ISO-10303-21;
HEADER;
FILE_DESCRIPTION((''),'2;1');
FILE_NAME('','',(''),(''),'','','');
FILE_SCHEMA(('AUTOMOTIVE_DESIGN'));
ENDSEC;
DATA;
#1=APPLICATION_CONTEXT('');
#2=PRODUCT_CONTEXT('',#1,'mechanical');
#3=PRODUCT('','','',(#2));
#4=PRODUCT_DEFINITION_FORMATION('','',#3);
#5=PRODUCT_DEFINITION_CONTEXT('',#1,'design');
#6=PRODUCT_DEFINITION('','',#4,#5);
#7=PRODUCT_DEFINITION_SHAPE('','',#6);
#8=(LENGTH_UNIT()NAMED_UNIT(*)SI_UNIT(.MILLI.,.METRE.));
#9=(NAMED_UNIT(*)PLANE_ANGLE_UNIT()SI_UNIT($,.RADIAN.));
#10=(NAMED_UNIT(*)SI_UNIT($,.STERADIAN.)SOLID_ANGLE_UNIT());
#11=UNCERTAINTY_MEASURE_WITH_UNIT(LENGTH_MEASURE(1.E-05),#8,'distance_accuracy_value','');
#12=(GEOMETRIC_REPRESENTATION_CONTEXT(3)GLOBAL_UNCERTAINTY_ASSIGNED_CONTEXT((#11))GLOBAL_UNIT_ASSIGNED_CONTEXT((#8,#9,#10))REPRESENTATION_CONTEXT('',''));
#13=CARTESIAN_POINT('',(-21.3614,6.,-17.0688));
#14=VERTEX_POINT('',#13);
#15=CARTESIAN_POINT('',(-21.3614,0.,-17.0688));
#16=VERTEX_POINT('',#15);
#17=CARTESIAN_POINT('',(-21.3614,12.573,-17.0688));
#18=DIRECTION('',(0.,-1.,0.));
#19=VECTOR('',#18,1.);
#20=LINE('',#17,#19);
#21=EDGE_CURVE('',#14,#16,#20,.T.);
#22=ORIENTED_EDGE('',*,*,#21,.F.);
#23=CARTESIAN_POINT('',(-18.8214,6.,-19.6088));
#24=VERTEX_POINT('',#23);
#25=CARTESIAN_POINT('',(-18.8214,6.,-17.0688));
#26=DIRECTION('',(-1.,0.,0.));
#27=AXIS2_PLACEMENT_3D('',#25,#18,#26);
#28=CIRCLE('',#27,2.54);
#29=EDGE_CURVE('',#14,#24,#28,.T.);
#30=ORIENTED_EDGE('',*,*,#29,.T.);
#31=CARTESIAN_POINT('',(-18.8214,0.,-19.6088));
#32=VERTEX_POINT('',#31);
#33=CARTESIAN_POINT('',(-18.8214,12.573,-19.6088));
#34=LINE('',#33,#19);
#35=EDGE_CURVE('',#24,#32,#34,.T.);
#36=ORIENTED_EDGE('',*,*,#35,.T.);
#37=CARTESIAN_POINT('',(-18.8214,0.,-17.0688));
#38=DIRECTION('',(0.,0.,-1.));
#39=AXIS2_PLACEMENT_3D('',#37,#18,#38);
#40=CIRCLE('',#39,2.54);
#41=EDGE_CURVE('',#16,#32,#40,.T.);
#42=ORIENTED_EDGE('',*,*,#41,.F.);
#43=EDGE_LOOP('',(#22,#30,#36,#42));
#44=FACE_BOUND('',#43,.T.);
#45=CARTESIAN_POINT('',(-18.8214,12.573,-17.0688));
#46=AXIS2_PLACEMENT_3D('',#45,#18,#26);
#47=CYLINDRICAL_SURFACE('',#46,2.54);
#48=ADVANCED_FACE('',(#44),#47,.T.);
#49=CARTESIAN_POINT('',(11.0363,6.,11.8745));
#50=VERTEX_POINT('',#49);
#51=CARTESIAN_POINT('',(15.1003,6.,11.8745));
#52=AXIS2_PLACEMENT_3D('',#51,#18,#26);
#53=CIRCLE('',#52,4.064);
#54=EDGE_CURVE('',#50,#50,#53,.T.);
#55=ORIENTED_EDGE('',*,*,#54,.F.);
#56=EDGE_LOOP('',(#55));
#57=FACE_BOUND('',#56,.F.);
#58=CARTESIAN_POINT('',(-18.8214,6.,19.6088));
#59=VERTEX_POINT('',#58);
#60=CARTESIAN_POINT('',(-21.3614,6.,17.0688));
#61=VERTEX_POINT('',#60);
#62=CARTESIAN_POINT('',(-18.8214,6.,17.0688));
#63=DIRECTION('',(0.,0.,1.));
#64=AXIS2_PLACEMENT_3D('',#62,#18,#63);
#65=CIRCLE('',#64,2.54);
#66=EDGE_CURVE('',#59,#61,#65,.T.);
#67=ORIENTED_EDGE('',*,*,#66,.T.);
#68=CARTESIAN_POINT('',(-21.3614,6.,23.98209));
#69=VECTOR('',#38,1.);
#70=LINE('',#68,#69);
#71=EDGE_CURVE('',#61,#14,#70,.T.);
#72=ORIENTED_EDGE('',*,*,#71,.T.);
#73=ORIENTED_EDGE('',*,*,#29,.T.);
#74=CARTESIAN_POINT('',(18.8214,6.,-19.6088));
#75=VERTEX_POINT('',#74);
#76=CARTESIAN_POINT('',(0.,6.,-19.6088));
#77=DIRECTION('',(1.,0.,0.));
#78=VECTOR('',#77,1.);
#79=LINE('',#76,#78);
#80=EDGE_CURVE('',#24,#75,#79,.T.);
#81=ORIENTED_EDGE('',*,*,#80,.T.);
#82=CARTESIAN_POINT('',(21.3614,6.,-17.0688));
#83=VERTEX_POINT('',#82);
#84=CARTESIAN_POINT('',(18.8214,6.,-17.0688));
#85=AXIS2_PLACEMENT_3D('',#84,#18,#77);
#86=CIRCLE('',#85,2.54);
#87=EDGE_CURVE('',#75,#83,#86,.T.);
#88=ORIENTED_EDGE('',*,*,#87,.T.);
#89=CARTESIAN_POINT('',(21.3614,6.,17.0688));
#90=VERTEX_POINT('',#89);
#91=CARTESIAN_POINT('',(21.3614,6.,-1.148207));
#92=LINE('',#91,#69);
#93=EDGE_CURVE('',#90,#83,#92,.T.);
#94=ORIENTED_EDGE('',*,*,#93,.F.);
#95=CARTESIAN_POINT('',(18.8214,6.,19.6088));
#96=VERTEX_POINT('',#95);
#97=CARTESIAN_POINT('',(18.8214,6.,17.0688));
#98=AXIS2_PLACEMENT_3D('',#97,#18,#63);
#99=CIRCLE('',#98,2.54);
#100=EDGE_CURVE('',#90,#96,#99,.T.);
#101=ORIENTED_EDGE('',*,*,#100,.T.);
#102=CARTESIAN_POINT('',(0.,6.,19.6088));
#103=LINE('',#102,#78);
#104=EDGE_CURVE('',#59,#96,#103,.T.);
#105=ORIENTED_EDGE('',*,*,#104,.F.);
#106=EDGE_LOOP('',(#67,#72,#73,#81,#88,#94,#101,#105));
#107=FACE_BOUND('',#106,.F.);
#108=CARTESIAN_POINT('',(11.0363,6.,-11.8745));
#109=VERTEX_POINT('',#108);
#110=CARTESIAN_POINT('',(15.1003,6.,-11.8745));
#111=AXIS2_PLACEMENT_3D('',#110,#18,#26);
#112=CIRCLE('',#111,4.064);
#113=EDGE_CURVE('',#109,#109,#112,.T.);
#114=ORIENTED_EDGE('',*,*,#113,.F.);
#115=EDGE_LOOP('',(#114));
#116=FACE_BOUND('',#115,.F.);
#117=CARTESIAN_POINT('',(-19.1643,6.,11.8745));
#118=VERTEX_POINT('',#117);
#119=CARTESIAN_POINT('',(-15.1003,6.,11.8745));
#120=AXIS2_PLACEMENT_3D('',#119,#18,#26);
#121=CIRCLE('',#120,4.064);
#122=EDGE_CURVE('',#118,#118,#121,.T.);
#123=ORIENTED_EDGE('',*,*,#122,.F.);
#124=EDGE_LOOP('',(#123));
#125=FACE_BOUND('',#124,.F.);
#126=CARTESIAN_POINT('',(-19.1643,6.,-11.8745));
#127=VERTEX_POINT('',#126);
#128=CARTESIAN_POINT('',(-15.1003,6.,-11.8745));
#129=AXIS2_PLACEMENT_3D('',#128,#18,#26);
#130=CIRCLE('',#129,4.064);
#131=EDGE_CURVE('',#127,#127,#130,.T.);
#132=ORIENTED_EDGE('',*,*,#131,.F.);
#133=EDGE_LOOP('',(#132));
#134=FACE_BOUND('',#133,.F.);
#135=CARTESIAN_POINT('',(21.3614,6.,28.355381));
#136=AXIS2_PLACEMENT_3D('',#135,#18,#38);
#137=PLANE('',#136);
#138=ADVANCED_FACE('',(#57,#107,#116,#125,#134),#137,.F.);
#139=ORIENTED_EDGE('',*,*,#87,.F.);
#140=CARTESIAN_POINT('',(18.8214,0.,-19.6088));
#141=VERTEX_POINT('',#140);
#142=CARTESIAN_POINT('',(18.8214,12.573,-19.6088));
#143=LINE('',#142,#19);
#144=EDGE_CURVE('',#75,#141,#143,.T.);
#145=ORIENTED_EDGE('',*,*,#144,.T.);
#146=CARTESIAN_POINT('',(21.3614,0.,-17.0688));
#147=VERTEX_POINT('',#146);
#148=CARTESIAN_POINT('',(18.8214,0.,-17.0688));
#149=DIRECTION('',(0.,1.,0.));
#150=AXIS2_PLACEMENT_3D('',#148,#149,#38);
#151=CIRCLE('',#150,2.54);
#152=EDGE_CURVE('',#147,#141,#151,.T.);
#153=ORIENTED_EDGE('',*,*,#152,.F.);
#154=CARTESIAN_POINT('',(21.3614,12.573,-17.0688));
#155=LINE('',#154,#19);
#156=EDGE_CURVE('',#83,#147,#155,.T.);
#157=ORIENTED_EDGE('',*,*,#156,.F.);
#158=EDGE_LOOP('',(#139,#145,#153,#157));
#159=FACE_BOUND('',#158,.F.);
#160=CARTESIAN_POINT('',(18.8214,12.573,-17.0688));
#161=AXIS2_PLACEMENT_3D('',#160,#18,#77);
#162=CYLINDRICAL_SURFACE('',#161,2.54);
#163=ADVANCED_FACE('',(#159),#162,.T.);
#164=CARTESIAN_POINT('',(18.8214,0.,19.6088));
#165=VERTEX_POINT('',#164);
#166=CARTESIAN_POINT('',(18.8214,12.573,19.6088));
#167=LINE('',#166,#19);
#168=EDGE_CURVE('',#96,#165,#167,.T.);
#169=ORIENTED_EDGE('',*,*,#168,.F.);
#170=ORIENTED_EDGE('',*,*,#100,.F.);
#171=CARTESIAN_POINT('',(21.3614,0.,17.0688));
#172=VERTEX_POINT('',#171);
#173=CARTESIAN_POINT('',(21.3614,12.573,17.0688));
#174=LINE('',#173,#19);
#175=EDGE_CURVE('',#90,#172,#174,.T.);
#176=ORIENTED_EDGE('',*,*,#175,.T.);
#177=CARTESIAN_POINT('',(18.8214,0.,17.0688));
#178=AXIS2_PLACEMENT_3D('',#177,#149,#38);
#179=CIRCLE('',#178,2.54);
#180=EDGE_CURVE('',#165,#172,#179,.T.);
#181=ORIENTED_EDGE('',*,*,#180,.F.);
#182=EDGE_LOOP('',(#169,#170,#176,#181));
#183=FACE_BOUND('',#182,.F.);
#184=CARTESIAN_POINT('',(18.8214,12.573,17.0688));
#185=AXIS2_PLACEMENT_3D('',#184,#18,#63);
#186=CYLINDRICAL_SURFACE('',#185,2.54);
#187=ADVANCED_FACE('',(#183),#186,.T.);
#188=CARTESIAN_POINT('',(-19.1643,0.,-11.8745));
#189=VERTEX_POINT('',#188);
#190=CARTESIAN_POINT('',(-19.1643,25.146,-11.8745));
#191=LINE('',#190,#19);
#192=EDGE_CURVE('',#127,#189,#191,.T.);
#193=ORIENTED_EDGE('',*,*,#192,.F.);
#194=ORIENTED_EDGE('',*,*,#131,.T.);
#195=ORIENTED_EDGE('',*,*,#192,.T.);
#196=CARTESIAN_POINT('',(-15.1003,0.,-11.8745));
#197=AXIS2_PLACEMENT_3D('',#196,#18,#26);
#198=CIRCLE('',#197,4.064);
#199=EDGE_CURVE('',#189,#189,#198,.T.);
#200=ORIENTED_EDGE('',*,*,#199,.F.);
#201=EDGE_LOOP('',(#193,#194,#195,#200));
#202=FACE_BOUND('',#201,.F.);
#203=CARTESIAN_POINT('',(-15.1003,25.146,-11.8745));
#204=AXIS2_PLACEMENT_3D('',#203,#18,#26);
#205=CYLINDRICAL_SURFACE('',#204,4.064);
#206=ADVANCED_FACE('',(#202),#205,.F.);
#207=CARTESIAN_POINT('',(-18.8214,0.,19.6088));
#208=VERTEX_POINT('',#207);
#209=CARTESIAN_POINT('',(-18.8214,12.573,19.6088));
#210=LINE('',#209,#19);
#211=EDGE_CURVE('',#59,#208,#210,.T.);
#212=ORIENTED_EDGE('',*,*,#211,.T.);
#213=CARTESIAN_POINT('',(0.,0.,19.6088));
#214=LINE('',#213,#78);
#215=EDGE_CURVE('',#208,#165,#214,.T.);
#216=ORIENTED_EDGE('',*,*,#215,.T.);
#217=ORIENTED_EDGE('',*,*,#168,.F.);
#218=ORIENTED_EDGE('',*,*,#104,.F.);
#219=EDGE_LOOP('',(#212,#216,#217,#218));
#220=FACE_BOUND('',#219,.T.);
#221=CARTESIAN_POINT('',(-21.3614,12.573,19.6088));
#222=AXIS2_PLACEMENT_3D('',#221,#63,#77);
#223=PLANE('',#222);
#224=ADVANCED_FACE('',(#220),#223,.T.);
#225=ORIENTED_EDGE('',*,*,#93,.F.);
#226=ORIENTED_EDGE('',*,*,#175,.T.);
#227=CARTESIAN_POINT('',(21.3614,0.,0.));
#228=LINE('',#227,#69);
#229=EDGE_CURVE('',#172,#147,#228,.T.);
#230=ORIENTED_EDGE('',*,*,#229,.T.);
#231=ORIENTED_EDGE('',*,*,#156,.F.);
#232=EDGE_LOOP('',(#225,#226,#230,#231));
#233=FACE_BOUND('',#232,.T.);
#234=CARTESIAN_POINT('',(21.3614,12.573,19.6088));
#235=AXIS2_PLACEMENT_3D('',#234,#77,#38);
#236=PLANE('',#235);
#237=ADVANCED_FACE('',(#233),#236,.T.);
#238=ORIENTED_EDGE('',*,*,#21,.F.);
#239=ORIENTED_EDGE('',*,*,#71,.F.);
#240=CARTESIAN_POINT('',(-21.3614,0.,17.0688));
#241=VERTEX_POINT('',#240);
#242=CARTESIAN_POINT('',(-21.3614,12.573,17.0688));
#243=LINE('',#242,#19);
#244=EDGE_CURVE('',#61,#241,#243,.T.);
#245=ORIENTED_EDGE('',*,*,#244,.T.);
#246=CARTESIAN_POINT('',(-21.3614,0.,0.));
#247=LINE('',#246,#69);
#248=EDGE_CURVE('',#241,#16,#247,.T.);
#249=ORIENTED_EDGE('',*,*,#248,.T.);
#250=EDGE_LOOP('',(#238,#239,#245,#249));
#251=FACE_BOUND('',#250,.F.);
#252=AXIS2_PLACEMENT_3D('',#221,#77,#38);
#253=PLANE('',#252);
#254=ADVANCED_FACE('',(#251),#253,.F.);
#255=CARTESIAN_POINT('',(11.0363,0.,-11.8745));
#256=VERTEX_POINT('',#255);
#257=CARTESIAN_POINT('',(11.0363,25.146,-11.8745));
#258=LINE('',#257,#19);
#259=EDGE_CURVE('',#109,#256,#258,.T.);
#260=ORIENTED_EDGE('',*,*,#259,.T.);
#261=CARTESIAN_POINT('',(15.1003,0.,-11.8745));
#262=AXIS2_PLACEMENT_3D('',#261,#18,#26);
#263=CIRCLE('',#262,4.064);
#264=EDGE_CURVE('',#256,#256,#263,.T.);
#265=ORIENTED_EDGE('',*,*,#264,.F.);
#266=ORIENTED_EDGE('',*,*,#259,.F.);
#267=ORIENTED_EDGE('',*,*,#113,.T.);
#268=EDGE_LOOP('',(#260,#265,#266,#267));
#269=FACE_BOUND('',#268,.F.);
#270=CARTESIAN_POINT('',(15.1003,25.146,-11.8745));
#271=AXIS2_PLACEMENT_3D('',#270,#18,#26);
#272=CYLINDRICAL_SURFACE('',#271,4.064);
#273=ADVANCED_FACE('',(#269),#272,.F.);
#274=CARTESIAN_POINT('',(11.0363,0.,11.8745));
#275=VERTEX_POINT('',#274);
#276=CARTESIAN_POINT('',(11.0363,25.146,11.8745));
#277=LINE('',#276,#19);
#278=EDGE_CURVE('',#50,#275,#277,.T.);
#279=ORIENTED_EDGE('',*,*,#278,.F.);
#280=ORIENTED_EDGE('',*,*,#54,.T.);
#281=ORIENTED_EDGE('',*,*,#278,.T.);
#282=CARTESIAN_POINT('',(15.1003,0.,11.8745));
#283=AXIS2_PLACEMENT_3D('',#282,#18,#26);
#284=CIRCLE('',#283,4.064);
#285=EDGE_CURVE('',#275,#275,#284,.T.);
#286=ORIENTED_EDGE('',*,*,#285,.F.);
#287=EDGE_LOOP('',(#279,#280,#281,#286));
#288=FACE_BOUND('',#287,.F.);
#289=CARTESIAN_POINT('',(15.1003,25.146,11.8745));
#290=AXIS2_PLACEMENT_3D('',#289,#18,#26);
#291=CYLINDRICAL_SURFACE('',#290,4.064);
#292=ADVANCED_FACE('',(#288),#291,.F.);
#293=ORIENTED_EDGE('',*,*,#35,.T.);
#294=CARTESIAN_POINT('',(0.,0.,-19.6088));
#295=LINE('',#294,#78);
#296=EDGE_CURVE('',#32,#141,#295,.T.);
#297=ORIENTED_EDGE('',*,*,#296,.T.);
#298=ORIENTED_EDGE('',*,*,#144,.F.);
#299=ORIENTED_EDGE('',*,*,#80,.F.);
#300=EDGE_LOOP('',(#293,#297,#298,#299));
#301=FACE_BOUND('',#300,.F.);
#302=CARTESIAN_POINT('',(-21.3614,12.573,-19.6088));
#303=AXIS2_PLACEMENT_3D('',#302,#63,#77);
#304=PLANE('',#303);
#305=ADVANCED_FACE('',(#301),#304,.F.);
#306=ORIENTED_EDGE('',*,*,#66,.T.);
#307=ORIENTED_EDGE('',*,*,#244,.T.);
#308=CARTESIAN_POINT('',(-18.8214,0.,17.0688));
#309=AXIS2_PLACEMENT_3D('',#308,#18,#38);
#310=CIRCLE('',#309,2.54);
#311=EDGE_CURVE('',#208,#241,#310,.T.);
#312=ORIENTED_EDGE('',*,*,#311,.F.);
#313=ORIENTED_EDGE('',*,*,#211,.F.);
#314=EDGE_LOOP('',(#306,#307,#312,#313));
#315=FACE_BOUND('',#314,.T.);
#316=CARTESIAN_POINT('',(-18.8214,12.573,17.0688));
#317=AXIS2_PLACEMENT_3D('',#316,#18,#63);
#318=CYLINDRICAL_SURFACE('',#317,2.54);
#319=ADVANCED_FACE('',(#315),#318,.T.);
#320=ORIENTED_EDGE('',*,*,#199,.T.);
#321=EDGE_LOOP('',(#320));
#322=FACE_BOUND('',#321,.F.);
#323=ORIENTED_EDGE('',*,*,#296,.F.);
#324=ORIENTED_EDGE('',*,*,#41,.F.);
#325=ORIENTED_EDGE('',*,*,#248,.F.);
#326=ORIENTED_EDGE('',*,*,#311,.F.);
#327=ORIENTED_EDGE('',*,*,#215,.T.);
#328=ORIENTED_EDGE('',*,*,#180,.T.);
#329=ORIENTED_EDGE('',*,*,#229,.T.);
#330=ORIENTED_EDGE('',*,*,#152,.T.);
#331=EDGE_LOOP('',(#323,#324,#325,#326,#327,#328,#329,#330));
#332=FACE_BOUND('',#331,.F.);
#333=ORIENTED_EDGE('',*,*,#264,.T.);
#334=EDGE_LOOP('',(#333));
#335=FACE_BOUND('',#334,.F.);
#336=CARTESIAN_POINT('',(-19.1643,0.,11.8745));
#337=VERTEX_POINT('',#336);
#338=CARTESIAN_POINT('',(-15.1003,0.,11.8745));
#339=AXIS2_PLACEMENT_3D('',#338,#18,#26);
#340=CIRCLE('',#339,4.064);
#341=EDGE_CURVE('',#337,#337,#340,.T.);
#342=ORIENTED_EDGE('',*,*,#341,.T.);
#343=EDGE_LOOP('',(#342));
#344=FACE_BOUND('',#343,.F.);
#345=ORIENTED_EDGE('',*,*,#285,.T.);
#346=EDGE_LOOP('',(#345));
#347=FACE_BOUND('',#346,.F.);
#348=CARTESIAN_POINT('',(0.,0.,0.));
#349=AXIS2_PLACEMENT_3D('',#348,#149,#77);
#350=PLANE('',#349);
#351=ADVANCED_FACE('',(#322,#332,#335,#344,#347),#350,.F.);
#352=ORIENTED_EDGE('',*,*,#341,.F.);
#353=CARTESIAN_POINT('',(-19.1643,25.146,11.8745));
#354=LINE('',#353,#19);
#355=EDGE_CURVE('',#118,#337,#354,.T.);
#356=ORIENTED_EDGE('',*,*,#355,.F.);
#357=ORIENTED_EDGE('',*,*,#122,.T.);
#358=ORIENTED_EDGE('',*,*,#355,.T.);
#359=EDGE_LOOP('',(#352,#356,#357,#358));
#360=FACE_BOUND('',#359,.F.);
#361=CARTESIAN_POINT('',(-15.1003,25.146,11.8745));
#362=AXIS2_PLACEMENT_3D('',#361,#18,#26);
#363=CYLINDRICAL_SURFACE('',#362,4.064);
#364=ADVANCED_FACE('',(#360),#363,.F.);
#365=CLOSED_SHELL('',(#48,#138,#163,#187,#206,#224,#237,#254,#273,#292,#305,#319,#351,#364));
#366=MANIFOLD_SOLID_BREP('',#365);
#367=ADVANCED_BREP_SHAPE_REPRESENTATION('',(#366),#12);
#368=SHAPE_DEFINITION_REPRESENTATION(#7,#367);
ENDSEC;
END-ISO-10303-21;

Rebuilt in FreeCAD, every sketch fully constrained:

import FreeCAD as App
import Part
import Sketcher

V = App.Vector
Q = App.Units.Quantity


def edges_at(feature, points):
    """Names of the edges that pass closest to the given points."""
    edges = feature.Shape.Edges
    near = lambda p: min(range(len(edges)), key=lambda i: edges[i].distToShape(Part.Vertex(*p))[0])
    return sorted({f"Edge{near(p) + 1}" for p in points})


def add_polygon(sketch, points):
    """Adds a closed chain of lines whose ends are joined by coincident constraints."""
    first, n = sketch.GeometryCount, len(points)
    for a, b in zip(points, points[1:] + points[:1]):
        sketch.addGeometry(Part.LineSegment(App.Vector(*a, 0), App.Vector(*b, 0)), False)
    for i in range(n):
        sketch.addConstraint(Sketcher.Constraint("Coincident", first + i, 2, first + (i + 1) % n, 1))

doc = App.newDocument("Part")
body = doc.addObject("PartDesign::Body", "Body")

sketch1 = body.newObject("Sketcher::SketchObject", "Sketch")
sketch1.AttachmentSupport = (doc.getObject("XZ_Plane"), [""])
sketch1.MapMode = "FlatFace"
sketch1.AttachmentOffset = App.Placement(V(0, 0, -0.495 * 25.4), App.Rotation())
add_polygon(sketch1, [(-21, -20), (-21, 20), (21, 20), (21, -20)])
sketch1.addConstraint([
    Sketcher.Constraint("Vertical", 0),
    Sketcher.Constraint("Horizontal", 1),
    Sketcher.Constraint("Vertical", 2),
    Sketcher.Constraint("Horizontal", 3),
    Sketcher.Constraint("Symmetric", 0, 2, 2, 2, -1, 1),
    Sketcher.Constraint("DistanceX", 1, 1, 1, 2, Q("1.682 in")),
    Sketcher.Constraint("DistanceY", 0, 1, 0, 2, Q("1.544 in")),
])
pad1 = body.newObject("PartDesign::Pad", "Pad")
pad1.Profile = sketch1
pad1.Length = Q("0.495 in")

sketch2 = body.newObject("Sketcher::SketchObject", "Sketch001")
sketch2.AttachmentSupport = (doc.getObject("XY_Plane"), [""])
sketch2.MapMode = "FlatFace"
sketch2.AttachmentOffset = App.Placement(V(0, 0, -0.772 * 25.4), App.Rotation())
add_polygon(sketch2, [(10, 13), (7, 7), (-7, 7), (-10, 13)])
sketch2.addConstraint([
    Sketcher.Constraint("Horizontal", 1),
    Sketcher.Constraint("Horizontal", 3),
    Sketcher.Constraint("Equal", 0, 2),
    Sketcher.Constraint("DistanceX", 1, 2, 1, 1, Q("0.55 in")),
    Sketcher.Constraint("DistanceX", 3, 1, 3, 2, Q("0.75 in")),
    Sketcher.Constraint("DistanceY", 1, 2, 2, 2, Q("0.2 in")),
    Sketcher.Constraint("DistanceX", -1, 1, 0, 2, Q("0.275 in")),
    Sketcher.Constraint("DistanceY", -1, 1, 0, 2, Q("0.295 in")),
])
pocket1 = body.newObject("PartDesign::Pocket", "Pocket")
pocket1.Profile = sketch2
pocket1.Type = "ThroughAll"
pocket1.Reversed = True

sketch3 = body.newObject("Sketcher::SketchObject", "Sketch002")
sketch3.AttachmentSupport = (doc.getObject("XZ_Plane"), [""])
sketch3.MapMode = "FlatFace"
sketch3.AttachmentOffset = App.Placement(V(0, 0, -0.495 * 25.4), App.Rotation())
sketch3.addGeometry([
    Part.Circle(V(15.1, 11.9, 0), V(0, 0, 1), 4.1),
    Part.Circle(V(-15.1, -11.9, 0), V(0, 0, 1), 4.1),
    Part.Circle(V(15.1, -11.9, 0), V(0, 0, 1), 4.1),
    Part.Circle(V(-15.1, 11.9, 0), V(0, 0, 1), 4.1),
], False)
sketch3.addConstraint([
    Sketcher.Constraint("Equal", 0, 1),
    Sketcher.Constraint("Equal", 1, 2),
    Sketcher.Constraint("Equal", 2, 3),
    Sketcher.Constraint("Symmetric", 0, 3, 1, 3, -1, 1),
    Sketcher.Constraint("Symmetric", 2, 3, 3, 3, -1, 1),
    Sketcher.Constraint("Symmetric", 1, 3, 2, 3, -2),
    Sketcher.Constraint("Diameter", 0, Q("0.32 in")),
    Sketcher.Constraint("DistanceX", 1, 3, 0, 3, Q("1.189 in")),
    Sketcher.Constraint("DistanceY", 1, 3, 0, 3, Q("0.935 in")),
])
doc.recompute()
hole = body.newObject("PartDesign::Hole", "Hole")
hole.Profile = sketch3
hole.ThreadType = "None"
hole.Diameter = Q("0.32 in")
hole.DepthType = "Dimension"
hole.Depth = Q("0.495 in")
hole.DrillPoint = "Flat"
hole.Reversed = True
doc.recompute()

fillet = body.newObject("PartDesign::Fillet", "Fillet")
fillet.Base = (hole, edges_at(hole, [
    (9.525, 12.573, 0),
    (-9.525, 12.573, 0),
    (-6.985, 7.493, 0),
    (6.985, 7.493, 0),
]))
fillet.Radius = Q("0.01 in")
doc.recompute()

fillet2 = body.newObject("PartDesign::Fillet", "Fillet001")
fillet2.Base = (fillet, edges_at(fillet, [
    (21.361, 6.287, -19.609),
    (21.361, 6.287, 19.609),
    (-21.361, 6.287, 19.609),
    (-21.361, 6.287, -19.609),
]))
fillet2.Radius = Q("0.1 in")

sketch4 = body.newObject("Sketcher::SketchObject", "Sketch003")
sketch4.AttachmentSupport = (doc.getObject("YZ_Plane"), [""])
sketch4.MapMode = "FlatFace"
sketch4.AttachmentOffset = App.Placement(V(0, 0, 0.841 * 25.4), App.Rotation())
add_polygon(sketch4, [(27, 28), (6, 28), (6, -31), (27, -31)])
sketch4.addConstraint([
    Sketcher.Constraint("Horizontal", 0),
    Sketcher.Constraint("Vertical", 1),
    Sketcher.Constraint("Horizontal", 2),
    Sketcher.Constraint("Vertical", 3),
    Sketcher.Constraint("DistanceX", 0, 2, 0, 1, 21.34018),
    Sketcher.Constraint("DistanceX", -1, 1, 0, 2, 6.0),
    Sketcher.Constraint("DistanceY", 1, 2, 1, 1, 59.007176),
    Sketcher.Constraint("DistanceY", -1, 1, 0, 2, 28.355381),
])
pocket2 = body.newObject("PartDesign::Pocket", "Pocket001")
pocket2.Profile = sketch4
pocket2.Type = "ThroughAll"

doc.recompute()
